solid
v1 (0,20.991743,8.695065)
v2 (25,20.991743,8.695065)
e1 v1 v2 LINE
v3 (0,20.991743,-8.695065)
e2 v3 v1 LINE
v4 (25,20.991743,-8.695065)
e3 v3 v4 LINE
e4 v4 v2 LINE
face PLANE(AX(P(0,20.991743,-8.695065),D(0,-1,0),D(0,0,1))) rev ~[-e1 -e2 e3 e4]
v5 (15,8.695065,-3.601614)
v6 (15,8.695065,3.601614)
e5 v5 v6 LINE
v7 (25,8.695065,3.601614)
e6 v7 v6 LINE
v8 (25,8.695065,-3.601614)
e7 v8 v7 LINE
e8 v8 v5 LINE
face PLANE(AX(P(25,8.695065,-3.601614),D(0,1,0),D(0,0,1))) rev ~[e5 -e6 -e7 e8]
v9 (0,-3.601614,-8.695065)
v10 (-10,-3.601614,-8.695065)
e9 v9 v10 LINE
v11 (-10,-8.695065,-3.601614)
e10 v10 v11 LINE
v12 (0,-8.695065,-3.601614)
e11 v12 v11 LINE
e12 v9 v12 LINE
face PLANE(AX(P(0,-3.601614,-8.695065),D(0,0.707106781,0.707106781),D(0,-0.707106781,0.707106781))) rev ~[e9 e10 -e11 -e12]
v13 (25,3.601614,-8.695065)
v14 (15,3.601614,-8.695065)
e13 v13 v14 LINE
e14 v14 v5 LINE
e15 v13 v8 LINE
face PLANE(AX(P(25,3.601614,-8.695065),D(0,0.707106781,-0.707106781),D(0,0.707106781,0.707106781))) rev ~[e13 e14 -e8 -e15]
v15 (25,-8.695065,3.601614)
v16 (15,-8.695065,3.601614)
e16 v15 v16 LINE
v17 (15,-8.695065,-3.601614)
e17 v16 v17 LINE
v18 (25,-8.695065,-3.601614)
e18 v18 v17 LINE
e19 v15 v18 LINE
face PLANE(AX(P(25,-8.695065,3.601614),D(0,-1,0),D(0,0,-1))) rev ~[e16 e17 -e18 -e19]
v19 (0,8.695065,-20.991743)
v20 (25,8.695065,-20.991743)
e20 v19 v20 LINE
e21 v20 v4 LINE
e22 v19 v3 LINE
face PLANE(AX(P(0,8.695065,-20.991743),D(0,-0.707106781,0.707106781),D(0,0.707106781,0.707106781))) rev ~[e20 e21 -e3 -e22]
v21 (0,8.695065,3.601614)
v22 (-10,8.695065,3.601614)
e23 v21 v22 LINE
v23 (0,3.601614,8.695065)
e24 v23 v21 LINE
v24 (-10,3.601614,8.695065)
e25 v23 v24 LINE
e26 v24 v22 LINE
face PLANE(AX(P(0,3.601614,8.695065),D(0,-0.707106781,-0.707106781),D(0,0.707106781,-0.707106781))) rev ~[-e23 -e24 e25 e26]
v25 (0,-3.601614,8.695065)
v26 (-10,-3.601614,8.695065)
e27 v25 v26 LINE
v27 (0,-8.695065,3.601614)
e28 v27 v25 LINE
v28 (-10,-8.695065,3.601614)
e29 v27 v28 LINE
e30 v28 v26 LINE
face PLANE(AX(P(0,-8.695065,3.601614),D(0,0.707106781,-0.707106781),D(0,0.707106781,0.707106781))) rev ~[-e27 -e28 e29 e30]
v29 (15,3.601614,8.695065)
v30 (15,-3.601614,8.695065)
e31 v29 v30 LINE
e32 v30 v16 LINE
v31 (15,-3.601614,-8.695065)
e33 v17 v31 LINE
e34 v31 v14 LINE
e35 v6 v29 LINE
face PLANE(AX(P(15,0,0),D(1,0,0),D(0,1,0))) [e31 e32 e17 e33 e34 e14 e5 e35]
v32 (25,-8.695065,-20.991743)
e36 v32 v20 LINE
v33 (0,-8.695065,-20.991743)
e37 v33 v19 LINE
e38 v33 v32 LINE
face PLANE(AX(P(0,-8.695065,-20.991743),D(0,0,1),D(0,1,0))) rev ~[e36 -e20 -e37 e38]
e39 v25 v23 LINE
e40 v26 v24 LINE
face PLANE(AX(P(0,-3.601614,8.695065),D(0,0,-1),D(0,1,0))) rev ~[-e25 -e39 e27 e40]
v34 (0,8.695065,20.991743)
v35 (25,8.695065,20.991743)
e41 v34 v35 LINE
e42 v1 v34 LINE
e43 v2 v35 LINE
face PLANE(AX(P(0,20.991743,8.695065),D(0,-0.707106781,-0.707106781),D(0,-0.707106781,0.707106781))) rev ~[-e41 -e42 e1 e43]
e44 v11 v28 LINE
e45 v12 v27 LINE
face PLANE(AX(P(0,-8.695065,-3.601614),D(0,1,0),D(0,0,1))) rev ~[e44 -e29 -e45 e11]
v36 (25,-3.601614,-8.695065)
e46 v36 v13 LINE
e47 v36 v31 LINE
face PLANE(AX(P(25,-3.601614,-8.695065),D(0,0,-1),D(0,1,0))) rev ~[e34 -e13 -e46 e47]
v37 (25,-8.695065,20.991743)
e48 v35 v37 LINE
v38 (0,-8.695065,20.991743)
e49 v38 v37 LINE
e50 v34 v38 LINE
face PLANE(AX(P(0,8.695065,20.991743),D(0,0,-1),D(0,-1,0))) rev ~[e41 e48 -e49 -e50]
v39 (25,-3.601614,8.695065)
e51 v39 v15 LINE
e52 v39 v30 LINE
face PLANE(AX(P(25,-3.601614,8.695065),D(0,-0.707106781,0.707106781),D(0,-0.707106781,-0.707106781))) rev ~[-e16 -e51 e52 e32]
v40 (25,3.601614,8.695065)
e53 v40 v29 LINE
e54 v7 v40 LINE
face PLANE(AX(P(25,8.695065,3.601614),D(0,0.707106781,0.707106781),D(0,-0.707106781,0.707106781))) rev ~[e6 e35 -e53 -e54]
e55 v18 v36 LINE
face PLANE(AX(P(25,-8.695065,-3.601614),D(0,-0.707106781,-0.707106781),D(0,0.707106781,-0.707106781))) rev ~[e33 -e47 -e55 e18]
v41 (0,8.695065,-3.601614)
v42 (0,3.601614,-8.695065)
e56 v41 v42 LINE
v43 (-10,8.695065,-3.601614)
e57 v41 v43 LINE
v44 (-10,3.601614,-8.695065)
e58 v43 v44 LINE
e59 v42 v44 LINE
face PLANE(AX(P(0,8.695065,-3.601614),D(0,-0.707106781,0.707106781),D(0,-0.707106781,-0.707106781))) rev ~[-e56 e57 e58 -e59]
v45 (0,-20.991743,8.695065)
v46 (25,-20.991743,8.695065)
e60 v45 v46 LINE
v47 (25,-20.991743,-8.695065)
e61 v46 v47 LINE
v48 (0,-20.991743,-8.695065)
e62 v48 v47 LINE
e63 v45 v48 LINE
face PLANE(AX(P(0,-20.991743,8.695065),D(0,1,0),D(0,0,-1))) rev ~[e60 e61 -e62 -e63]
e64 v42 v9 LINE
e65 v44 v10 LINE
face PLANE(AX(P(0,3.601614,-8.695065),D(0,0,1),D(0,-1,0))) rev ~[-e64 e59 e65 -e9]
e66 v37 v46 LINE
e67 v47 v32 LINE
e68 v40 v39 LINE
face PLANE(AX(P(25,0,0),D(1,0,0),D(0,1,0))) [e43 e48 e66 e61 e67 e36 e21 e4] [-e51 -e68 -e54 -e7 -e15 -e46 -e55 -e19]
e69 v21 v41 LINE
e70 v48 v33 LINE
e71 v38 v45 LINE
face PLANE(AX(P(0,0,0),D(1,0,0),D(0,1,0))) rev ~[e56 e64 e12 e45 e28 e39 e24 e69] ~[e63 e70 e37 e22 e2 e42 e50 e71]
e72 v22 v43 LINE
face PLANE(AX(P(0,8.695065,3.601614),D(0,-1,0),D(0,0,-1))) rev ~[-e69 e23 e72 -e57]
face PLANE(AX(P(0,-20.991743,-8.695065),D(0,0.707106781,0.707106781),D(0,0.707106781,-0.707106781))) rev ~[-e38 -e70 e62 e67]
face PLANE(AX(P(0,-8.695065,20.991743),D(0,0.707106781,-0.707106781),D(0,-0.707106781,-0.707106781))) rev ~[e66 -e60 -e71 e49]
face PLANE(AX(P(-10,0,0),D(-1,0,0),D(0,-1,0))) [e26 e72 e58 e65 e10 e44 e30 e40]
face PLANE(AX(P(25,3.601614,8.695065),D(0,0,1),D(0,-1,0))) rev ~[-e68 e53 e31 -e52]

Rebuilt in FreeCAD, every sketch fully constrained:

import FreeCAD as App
import Part
import Sketcher
from FreeCAD import Vector


def add_polygon(sketch, points):
    """Adds a closed chain of lines whose ends are joined by coincident constraints."""
    first, n = sketch.GeometryCount, len(points)
    for a, b in zip(points, points[1:] + points[:1]):
        sketch.addGeometry(Part.LineSegment(App.Vector(*a, 0), App.Vector(*b, 0)), False)
    for i in range(n):
        sketch.addConstraint(Sketcher.Constraint("Coincident", first + i, 2, first + (i + 1) % n, 1))

doc = App.newDocument("Part")
body = doc.addObject("PartDesign::Body", "Body")

sketch1 = body.newObject("Sketcher::SketchObject", "Sketch")
sketch1.AttachmentSupport = (doc.getObject("YZ_Plane"), [""])
sketch1.MapMode = "FlatFace"
add_polygon(sketch1, [(9, -21), (21, -9), (21, 9), (9, 21), (-9, 21), (-21, 9), (-21, -9), (-9, -21)])
sketch1.addConstraint([
    Sketcher.Constraint("Vertical", 1),
    Sketcher.Constraint("Horizontal", 3),
    Sketcher.Constraint("Vertical", 5),
    Sketcher.Constraint("Horizontal", 7),
    Sketcher.Constraint("Symmetric", 0, 2, 4, 2, -1, 1),
    Sketcher.Constraint("Symmetric", 2, 2, 6, 2, -1, 1),
    Sketcher.Constraint("Perpendicular", 0, 2),
    Sketcher.Constraint("Perpendicular", 2, 4),
    Sketcher.Constraint("Perpendicular", 4, 6),
    Sketcher.Constraint("Horizontal", 1, 2, 4, 2),
    Sketcher.Constraint("Vertical", 3, 2, 6, 2),
    Sketcher.Constraint("Equal", 7, 1),
    Sketcher.Constraint("DistanceX", 3, 2, 3, 1, 17.39013),
    Sketcher.Constraint("Distance", 0, 17.390129),
])
pad1 = body.newObject("PartDesign::Pad", "Pad")
pad1.Profile = sketch1
pad1.Length = 25

sketch2 = body.newObject("Sketcher::SketchObject", "Sketch001")
sketch2.AttachmentSupport = (doc.getObject("YZ_Plane"), [""])
sketch2.MapMode = "FlatFace"
add_polygon(sketch2, [(4, 9), (9, 4), (9, -4), (4, -9), (-4, -9), (-9, -4), (-9, 4), (-4, 9)])
sketch2.addConstraint([
    Sketcher.Constraint("Vertical", 1),
    Sketcher.Constraint("Horizontal", 3),
    Sketcher.Constraint("Vertical", 5),
    Sketcher.Constraint("Horizontal", 7),
    Sketcher.Constraint("Symmetric", 0, 2, 4, 2, -1, 1),
    Sketcher.Constraint("Symmetric", 2, 2, 6, 2, -1, 1),
    Sketcher.Constraint("Perpendicular", 0, 2),
    Sketcher.Constraint("Perpendicular", 2, 4),
    Sketcher.Constraint("Perpendicular", 4, 6),
    Sketcher.Constraint("Horizontal", 1, 2, 4, 2),
    Sketcher.Constraint("Vertical", 3, 2, 6, 2),
    Sketcher.Constraint("Equal", 7, 1),
    Sketcher.Constraint("DistanceX", 3, 2, 3, 1, 7.203228),
    Sketcher.Constraint("DistanceX", 2, 2, 1, 2, 5.093451),
])
pad2 = body.newObject("PartDesign::Pad", "Pad001")
pad2.Profile = sketch2
pad2.Length = 10
pad2.Reversed = True

sketch3 = body.newObject("Sketcher::SketchObject", "Sketch002")
sketch3.AttachmentSupport = (doc.getObject("YZ_Plane"), [""])
sketch3.MapMode = "FlatFace"
sketch3.AttachmentOffset = App.Placement(Vector(0, 0, 25), App.Rotation())
add_polygon(sketch3, [(-4, 9), (-9, 4), (-9, -4), (-4, -9), (4, -9), (9, -4), (9, 4), (4, 9)])
sketch3.addConstraint([
    Sketcher.Constraint("Vertical", 1),
    Sketcher.Constraint("Horizontal", 3),
    Sketcher.Constraint("Vertical", 5),
    Sketcher.Constraint("Horizontal", 7),
    Sketcher.Constraint("Symmetric", 0, 2, 4, 2, -1, 1),
    Sketcher.Constraint("Symmetric", 2, 2, 6, 2, -1, 1),
    Sketcher.Constraint("Perpendicular", 0, 2),
    Sketcher.Constraint("Perpendicular", 2, 4),
    Sketcher.Constraint("Perpendicular", 4, 6),
    Sketcher.Constraint("Horizontal", 1, 2, 4, 2),
    Sketcher.Constraint("Vertical", 3, 2, 6, 2),
    Sketcher.Constraint("Equal", 7, 1),
    Sketcher.Constraint("DistanceX", 3, 1, 3, 2, 7.203228),
    Sketcher.Constraint("DistanceX", 1, 2, 2, 2, 5.093451),
])
pocket1 = body.newObject("PartDesign::Pocket", "Pocket")
pocket1.Profile = sketch3
pocket1.Length = 10

doc.recompute()
